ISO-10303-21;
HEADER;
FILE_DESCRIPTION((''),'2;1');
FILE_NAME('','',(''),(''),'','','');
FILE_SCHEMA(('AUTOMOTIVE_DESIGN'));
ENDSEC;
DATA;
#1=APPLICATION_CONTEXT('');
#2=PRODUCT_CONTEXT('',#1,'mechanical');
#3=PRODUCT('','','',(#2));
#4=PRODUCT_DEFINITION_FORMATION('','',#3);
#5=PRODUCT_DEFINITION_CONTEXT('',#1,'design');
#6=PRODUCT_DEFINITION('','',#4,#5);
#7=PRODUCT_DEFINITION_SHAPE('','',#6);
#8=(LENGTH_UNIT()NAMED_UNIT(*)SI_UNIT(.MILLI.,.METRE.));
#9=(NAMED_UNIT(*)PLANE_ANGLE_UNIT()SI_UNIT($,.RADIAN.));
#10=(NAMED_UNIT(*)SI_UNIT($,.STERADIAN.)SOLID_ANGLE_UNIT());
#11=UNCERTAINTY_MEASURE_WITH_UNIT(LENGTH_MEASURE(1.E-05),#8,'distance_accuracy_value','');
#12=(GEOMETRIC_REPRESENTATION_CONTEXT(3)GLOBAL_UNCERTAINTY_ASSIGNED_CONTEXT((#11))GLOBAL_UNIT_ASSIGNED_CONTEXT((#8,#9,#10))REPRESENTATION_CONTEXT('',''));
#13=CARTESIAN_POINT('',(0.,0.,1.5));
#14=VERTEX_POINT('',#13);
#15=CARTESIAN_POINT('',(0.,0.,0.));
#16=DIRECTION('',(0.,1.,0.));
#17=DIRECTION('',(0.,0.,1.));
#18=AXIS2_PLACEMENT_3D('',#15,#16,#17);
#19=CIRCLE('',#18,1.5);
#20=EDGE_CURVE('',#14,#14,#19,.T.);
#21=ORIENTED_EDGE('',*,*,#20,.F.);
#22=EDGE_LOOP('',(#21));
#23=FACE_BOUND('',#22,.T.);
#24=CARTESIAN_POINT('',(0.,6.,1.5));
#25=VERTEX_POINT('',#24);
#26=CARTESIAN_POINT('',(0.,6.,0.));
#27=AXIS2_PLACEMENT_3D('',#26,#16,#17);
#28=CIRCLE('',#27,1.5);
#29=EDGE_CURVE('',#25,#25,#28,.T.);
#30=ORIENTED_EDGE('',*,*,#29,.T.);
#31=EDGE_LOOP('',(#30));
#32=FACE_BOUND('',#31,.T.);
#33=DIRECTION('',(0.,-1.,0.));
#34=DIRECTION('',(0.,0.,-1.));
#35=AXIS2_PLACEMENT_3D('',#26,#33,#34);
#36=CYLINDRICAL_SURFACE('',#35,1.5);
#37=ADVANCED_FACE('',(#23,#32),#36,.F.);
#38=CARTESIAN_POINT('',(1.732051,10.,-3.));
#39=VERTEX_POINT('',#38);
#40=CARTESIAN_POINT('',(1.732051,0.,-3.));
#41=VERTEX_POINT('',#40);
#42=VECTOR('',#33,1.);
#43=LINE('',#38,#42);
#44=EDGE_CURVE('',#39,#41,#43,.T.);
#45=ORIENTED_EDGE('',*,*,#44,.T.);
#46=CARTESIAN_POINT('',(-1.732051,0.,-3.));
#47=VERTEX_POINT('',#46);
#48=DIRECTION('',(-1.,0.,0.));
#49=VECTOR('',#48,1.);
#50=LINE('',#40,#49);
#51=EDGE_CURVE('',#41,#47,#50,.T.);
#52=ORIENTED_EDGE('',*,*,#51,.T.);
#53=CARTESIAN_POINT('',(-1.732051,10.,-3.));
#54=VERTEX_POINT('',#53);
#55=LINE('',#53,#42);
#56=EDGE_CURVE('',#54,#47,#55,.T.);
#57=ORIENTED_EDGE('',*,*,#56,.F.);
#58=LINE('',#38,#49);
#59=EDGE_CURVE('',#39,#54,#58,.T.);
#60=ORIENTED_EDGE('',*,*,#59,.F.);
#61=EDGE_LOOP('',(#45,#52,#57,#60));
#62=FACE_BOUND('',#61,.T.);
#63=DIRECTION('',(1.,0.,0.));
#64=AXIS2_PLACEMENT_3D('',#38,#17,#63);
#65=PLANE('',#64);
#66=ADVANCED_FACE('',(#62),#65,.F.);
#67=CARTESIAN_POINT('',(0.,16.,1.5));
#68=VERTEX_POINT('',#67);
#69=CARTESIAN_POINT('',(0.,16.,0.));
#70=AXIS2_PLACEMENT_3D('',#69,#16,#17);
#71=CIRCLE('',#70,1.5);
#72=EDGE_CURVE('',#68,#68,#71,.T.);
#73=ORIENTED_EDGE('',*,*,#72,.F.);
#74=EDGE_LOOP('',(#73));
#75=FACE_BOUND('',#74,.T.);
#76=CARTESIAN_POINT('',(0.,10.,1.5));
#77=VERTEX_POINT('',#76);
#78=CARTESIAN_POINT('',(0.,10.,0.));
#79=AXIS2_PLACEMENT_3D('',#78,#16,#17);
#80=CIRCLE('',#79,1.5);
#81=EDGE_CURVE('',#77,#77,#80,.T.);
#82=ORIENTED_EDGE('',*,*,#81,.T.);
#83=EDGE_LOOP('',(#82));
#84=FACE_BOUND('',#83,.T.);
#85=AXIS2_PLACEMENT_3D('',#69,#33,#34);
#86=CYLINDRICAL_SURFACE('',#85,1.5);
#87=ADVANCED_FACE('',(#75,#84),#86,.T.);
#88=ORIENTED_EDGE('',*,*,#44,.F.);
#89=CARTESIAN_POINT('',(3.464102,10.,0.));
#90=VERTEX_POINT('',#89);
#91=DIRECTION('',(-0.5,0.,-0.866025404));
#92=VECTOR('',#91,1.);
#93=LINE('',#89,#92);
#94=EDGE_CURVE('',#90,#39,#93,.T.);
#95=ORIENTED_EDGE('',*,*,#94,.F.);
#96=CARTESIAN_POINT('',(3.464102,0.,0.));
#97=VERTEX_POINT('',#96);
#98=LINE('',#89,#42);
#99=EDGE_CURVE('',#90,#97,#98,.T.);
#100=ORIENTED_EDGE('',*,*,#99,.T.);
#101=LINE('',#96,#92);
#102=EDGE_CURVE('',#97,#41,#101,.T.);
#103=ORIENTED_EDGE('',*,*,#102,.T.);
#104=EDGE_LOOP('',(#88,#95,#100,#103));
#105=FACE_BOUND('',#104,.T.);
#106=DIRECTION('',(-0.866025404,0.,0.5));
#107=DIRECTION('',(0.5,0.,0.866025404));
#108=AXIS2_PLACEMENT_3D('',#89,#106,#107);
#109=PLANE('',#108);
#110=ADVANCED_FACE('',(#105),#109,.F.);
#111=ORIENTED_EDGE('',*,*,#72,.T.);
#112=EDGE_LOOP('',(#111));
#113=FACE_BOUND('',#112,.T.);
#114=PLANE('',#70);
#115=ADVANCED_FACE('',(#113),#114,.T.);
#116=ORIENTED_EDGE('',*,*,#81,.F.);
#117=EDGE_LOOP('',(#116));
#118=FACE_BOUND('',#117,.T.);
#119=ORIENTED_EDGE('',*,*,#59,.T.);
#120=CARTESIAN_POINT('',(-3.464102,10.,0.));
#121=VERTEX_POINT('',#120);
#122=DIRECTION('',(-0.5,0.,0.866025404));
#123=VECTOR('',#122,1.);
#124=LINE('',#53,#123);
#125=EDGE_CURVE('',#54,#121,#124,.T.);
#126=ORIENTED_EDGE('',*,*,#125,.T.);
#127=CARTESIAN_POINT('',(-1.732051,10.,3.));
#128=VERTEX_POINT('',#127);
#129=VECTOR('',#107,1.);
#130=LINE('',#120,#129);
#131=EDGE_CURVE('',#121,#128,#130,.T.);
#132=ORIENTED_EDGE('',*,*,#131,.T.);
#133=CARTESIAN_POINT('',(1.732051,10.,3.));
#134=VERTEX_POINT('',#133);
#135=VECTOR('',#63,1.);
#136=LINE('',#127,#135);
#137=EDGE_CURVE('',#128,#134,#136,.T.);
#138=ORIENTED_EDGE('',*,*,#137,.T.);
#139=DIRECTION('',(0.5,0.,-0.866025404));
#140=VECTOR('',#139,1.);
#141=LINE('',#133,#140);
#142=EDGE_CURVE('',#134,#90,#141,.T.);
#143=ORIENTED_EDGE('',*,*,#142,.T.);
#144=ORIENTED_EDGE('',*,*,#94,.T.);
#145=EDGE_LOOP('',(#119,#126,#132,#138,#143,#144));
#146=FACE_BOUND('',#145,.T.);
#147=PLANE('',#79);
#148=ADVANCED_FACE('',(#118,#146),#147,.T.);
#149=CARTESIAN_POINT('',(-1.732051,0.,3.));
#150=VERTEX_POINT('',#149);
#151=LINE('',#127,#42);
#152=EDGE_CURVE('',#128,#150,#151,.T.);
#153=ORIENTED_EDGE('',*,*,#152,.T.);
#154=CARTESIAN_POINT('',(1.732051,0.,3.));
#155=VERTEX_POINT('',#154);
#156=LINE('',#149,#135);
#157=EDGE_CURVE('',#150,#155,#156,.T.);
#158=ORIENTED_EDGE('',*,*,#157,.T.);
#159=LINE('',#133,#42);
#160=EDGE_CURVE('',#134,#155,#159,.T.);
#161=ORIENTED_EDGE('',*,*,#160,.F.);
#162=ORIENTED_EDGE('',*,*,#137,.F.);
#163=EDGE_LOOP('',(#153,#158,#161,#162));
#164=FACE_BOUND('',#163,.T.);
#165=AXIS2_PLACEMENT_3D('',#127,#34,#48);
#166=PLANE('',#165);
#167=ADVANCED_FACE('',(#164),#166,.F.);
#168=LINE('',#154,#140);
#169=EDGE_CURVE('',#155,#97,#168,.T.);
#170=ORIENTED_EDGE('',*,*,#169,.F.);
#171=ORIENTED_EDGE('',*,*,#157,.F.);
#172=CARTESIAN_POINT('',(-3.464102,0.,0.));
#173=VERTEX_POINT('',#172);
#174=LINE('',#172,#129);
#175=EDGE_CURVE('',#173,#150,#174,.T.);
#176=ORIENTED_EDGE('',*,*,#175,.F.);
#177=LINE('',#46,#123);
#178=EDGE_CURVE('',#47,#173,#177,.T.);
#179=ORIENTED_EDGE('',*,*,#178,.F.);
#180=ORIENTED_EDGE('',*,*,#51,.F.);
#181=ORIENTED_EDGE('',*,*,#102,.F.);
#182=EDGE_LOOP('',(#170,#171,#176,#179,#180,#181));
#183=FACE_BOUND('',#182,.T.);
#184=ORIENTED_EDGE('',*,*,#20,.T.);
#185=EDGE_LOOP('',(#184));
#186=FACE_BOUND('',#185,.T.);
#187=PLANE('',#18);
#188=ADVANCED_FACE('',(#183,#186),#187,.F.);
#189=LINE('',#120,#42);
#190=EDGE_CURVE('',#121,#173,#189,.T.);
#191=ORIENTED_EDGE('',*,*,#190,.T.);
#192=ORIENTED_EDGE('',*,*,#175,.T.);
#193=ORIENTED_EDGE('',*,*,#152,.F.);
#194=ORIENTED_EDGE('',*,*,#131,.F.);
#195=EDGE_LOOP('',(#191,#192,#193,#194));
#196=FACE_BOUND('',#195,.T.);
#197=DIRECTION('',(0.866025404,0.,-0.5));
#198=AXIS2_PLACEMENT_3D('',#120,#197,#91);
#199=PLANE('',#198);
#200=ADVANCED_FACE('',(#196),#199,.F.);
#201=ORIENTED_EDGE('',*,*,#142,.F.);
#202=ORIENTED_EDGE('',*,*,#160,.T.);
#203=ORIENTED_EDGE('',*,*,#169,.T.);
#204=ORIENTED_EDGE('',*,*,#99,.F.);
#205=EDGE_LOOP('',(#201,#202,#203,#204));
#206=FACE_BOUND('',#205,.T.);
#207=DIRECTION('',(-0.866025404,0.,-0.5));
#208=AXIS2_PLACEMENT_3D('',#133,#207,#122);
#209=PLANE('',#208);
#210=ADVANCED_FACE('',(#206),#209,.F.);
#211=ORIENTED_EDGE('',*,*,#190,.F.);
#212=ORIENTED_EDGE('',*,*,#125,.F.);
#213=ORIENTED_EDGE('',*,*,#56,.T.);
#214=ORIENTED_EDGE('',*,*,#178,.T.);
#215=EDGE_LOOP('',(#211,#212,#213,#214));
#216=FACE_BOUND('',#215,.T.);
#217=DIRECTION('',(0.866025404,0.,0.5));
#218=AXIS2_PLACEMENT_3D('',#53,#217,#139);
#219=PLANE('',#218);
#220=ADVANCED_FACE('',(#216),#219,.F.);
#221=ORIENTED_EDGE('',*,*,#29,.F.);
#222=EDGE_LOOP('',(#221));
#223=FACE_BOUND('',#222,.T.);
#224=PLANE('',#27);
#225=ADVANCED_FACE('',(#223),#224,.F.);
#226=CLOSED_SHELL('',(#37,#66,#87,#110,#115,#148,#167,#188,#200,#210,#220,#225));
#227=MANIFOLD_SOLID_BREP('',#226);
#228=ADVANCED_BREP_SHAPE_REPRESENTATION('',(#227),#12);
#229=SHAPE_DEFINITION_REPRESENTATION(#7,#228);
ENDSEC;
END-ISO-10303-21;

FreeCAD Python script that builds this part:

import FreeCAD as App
import Part
import Sketcher

V = App.Vector
Q = App.Units.Quantity


def add_polygon(sketch, points):
    """Adds a closed chain of lines whose ends are joined by coincident constraints."""
    first, n = sketch.GeometryCount, len(points)
    for a, b in zip(points, points[1:] + points[:1]):
        sketch.addGeometry(Part.LineSegment(App.Vector(*a, 0), App.Vector(*b, 0)), False)
    for i in range(n):
        sketch.addConstraint(Sketcher.Constraint("Coincident", first + i, 2, first + (i + 1) % n, 1))

doc = App.newDocument("Part")
params = doc.addObject("Spreadsheet::Sheet", "Params")
for row, (alias, value) in enumerate([
    ("pad1_length", "10 mm"),
    ("sketch2_diameter", "3 mm"),
    ("pad2_length", "6 mm"),
    ("sketch3_diameter", "3 mm"),
    ("pocket1_length", "6 mm"),
], start=1):
    params.set(f"A{row}", alias)
    params.set(f"B{row}", "=" + value)
    params.setAlias(f"B{row}", alias)

body = doc.addObject("PartDesign::Body", "Body")

# Sketch on XZ plane
sketch1 = body.newObject("Sketcher::SketchObject", "Sketch")
sketch1.AttachmentSupport = (doc.getObject("XZ_Plane"), [""])
sketch1.MapMode = "FlatFace"
add_polygon(sketch1, [(1.7, 3), (3.5, 0), (1.7, -3), (-1.7, -3), (-3.5, 0), (-1.7, 3)])  # lines 0-5
sketch1.addConstraint(Sketcher.Constraint("Horizontal", 2))
sketch1.addConstraint(Sketcher.Constraint("Horizontal", 5))
sketch1.addConstraint(Sketcher.Constraint("Symmetric", 0, 2, 3, 2, -1, 1))
sketch1.addConstraint(Sketcher.Constraint("Symmetric", 1, 2, 4, 2, -1, 1))
sketch1.addConstraint(Sketcher.Constraint("PointOnObject", 0, 2, -1))
sketch1.addConstraint(Sketcher.Constraint("Parallel", 0, 3))
sketch1.addConstraint(Sketcher.Constraint("Vertical", 2, 2, 4, 2))
sketch1.addConstraint(Sketcher.Constraint("Angle", 0, Q("-60 deg")))
sketch1.addConstraint(Sketcher.Constraint("DistanceY", 1, 2, -1, 1, 3.0))
sketch1.addConstraint(Sketcher.Constraint("DistanceX", 2, 2, 2, 1, 3.464102))
pad1 = body.newObject("PartDesign::Pad", "Pad")
pad1.Profile = sketch1
pad1.setExpression("Length", "Params.pad1_length")
pad1.Reversed = True

# Sketch on XZ plane
sketch2 = body.newObject("Sketcher::SketchObject", "Sketch001")
sketch2.AttachmentSupport = (doc.getObject("XZ_Plane"), [""])
sketch2.MapMode = "FlatFace"
sketch2.AttachmentOffset = App.Placement(V(0, 0, -10), App.Rotation())
sketch2.addGeometry(Part.Circle(V(0, 0, 0), V(0, 0, 1), 1.5), False)
sketch2.addConstraint(Sketcher.Constraint("Coincident", 0, 3, -1, 1))
sketch2.addConstraint(Sketcher.Constraint("Diameter", 0, 3.0))
sketch2.setExpression("Constraints[1]", "Params.sketch2_diameter")
pad2 = body.newObject("PartDesign::Pad", "Pad001")
pad2.Profile = sketch2
pad2.setExpression("Length", "Params.pad2_length")
pad2.Reversed = True

# Sketch on XZ plane
sketch3 = body.newObject("Sketcher::SketchObject", "Sketch002")
sketch3.AttachmentSupport = (doc.getObject("XZ_Plane"), [""])
sketch3.MapMode = "FlatFace"
sketch3.addGeometry(Part.Circle(V(0, 0, 0), V(0, 0, 1), 1.5), False)
sketch3.addConstraint(Sketcher.Constraint("Coincident", 0, 3, -1, 1))
sketch3.addConstraint(Sketcher.Constraint("Diameter", 0, 3.0))
sketch3.setExpression("Constraints[1]", "Params.sketch3_diameter")
pocket1 = body.newObject("PartDesign::Pocket", "Pocket")
pocket1.Profile = sketch3
pocket1.setExpression("Length", "Params.pocket1_length")

doc.recompute()
